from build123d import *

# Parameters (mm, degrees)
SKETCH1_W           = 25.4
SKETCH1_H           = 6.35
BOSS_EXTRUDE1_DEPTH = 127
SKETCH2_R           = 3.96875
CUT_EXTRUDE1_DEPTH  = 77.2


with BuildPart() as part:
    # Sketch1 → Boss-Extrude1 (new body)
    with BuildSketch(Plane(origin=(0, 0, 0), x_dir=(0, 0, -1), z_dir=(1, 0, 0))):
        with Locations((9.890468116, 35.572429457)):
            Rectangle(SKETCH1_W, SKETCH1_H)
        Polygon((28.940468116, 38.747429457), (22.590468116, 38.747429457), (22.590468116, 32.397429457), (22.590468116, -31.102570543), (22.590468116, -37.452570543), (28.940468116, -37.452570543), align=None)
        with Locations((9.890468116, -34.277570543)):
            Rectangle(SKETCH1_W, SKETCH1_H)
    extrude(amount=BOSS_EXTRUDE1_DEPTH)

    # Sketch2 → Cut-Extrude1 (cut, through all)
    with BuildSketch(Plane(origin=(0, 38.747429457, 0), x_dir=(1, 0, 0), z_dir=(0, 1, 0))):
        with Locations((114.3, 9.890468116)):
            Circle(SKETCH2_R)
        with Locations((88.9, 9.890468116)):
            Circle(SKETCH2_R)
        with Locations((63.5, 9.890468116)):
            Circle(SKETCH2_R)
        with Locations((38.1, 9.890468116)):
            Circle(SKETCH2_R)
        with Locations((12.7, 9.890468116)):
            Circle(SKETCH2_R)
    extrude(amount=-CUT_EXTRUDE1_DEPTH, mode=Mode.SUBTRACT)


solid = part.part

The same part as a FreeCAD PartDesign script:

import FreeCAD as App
import Part
import Sketcher
from FreeCAD import Vector
Q = App.Units.Quantity


def add_polygon(sketch, points):
    """Adds a closed chain of lines whose ends are joined by coincident constraints."""
    first, n = sketch.GeometryCount, len(points)
    for a, b in zip(points, points[1:] + points[:1]):
        sketch.addGeometry(Part.LineSegment(App.Vector(*a, 0), App.Vector(*b, 0)), False)
    for i in range(n):
        sketch.addConstraint(Sketcher.Constraint("Coincident", first + i, 2, first + (i + 1) % n, 1))

doc = App.newDocument("Part")
body = doc.addObject("PartDesign::Body", "Body")

sketch1 = doc.addObject("Sketcher::SketchObject", "Sketch")
body.addObject(sketch1)
sketch1.AttachmentSupport = (doc.YZ_Plane, [""])
sketch1.MapMode = "FlatFace"
add_polygon(sketch1, [(39, 3), (32, 3), (32, -23), (-31, -23), (-31, 3), (-37, 3), (-37, -29), (39, -29)])
sketch1.addConstraint([
    Sketcher.Constraint("Horizontal", 0),
    Sketcher.Constraint("Vertical", 1),
    Sketcher.Constraint("Horizontal", 2),
    Sketcher.Constraint("Vertical", 3),
    Sketcher.Constraint("Horizontal", 4),
    Sketcher.Constraint("Vertical", 5),
    Sketcher.Constraint("Horizontal", 6),
    Sketcher.Constraint("Vertical", 7),
    Sketcher.Constraint("Horizontal", 0, 2, 3, 2),
    Sketcher.Constraint("Equal", 0, 4),
    Sketcher.Constraint("DistanceX", 6, 1, 6, 2, Q("3 in")),
    Sketcher.Constraint("DistanceY", 1, 2, 1, 1, Q("1 in")),
    Sketcher.Constraint("DistanceX", 2, 2, 2, 1, Q("2.5 in")),
    Sketcher.Constraint("DistanceY", 5, 2, 5, 1, Q("1.25 in")),
    Sketcher.Constraint("DistanceX", -1, 1, 0, 2, Q("32.397429 mm")),
    Sketcher.Constraint("DistanceY", -1, 1, 0, 2, Q("2.809532 mm")),
])
pad1 = doc.addObject("PartDesign::Pad", "Pad")
body.addObject(pad1)
pad1.Profile = sketch1
pad1.Length = Q("5 in")

sketch2 = doc.addObject("Sketcher::SketchObject", "Sketch001")
body.addObject(sketch2)
sketch2.AttachmentSupport = (doc.XZ_Plane, [""])
sketch2.MapMode = "FlatFace"
sketch2.AttachmentOffset = App.Placement(Vector(0, 0, -38.747429), App.Rotation())
sketch2.addGeometry([
    Part.Circle(Vector(114.3, -9.9, 0), Vector(0, 0, 1), 4),
    Part.Circle(Vector(88.9, -9.9, 0), Vector(0, 0, 1), 4),
    Part.Circle(Vector(63.5, -9.9, 0), Vector(0, 0, 1), 4),
    Part.Circle(Vector(38.1, -9.9, 0), Vector(0, 0, 1), 4),
    Part.Circle(Vector(12.7, -9.9, 0), Vector(0, 0, 1), 4),
], False)
sketch2.addConstraint([
    Sketcher.Constraint("Equal", 0, 1),
    Sketcher.Constraint("Equal", 1, 2),
    Sketcher.Constraint("Equal", 2, 3),
    Sketcher.Constraint("Equal", 3, 4),
    Sketcher.Constraint("Horizontal", 0, 3, 1, 3),
    Sketcher.Constraint("Horizontal", 1, 3, 2, 3),
    Sketcher.Constraint("Horizontal", 2, 3, 3, 3),
    Sketcher.Constraint("Horizontal", 3, 3, 4, 3),
    Sketcher.Constraint("Diameter", 0, Q("0.3125 in")),
    Sketcher.Constraint("DistanceX", 1, 3, 0, 3, Q("1 in")),
    Sketcher.Constraint("DistanceX", 2, 3, 1, 3, Q("1 in")),
    Sketcher.Constraint("DistanceX", 3, 3, 2, 3, Q("1 in")),
    Sketcher.Constraint("DistanceX", 4, 3, 3, 3, Q("1 in")),
    Sketcher.Constraint("DistanceX", -1, 1, 0, 3, Q("4.5 in")),
    Sketcher.Constraint("DistanceY", 0, 3, -1, 1, Q("9.890468 mm")),
])
pocket1 = doc.addObject("PartDesign::Pocket", "Pocket")
body.addObject(pocket1)
pocket1.Profile = sketch2
pocket1.Type = "ThroughAll"
pocket1.Reversed = True

doc.recompute()
